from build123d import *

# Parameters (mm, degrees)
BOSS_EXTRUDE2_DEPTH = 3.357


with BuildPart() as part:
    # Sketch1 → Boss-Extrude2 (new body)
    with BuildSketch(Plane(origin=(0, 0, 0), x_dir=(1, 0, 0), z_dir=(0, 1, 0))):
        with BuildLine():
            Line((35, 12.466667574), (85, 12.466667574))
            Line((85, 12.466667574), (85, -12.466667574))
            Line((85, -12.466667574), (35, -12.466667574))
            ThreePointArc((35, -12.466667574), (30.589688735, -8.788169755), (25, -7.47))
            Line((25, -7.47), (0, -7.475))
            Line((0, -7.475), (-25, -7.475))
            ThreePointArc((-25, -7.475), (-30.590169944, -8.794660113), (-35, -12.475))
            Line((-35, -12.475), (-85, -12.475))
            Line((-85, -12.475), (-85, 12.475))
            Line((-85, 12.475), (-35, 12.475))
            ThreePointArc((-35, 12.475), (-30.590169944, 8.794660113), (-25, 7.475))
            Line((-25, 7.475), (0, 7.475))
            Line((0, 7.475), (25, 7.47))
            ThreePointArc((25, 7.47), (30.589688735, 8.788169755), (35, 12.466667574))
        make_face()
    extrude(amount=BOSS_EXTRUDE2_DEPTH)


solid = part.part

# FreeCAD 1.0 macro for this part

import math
import FreeCAD as App
import Part
import Sketcher
from FreeCAD import Vector
Q = App.Units.Quantity

doc = App.newDocument("Part")
body = doc.addObject("PartDesign::Body", "Body")

# Sketch on XZ plane
sketch1 = body.newObject("Sketcher::SketchObject", "Sketch")
sketch1.AttachmentSupport = (doc.getObject("XZ_Plane"), [""])
sketch1.MapMode = "FlatFace"
sketch1.addGeometry([
    Part.LineSegment(Vector(85, -12, 0), Vector(35, -12, 0)),  # 0
    Part.ArcOfCircle(Part.Circle(Vector(25, -20, 0), Vector(0, 0, 1), 12), math.radians(37), math.radians(90)),  # 1
    Part.LineSegment(Vector(25, -7, 0), Vector(0, -7, 0)),  # 2
    Part.LineSegment(Vector(0, -7, 0), Vector(-25, -7, 0)),  # 3
    Part.ArcOfCircle(Part.Circle(Vector(-25, -20, 0), Vector(0, 0, 1), 13), math.radians(90), math.radians(143)),  # 4
    Part.LineSegment(Vector(-35, -12, 0), Vector(-85, -12, 0)),  # 5
    Part.LineSegment(Vector(-85, -12, 0), Vector(-85, 12, 0)),  # 6
    Part.LineSegment(Vector(-85, 12, 0), Vector(-35, 12, 0)),  # 7
    Part.ArcOfCircle(Part.Circle(Vector(-25, 20, 0), Vector(0, 0, 1), 13), math.radians(-143), math.radians(-90)),  # 8
    Part.LineSegment(Vector(-25, 7, 0), Vector(0, 7, 0)),  # 9
    Part.LineSegment(Vector(0, 7, 0), Vector(25, 7, 0)),  # 10
    Part.ArcOfCircle(Part.Circle(Vector(25, 20, 0), Vector(0, 0, 1), 12), math.radians(-90), math.radians(-37)),  # 11
    Part.LineSegment(Vector(35, 12, 0), Vector(85, 12, 0)),  # 12
    Part.LineSegment(Vector(85, 12, 0), Vector(85, -12, 0)),  # 13
], False)
sketch1.addConstraint([
    Sketcher.Constraint("Coincident", 0, 2, 1, 1),
    Sketcher.Constraint("Tangent", 1, 2, 2, 1),
    Sketcher.Constraint("Coincident", 2, 2, 3, 1),
    Sketcher.Constraint("Tangent", 3, 2, 4, 1),
    Sketcher.Constraint("Coincident", 4, 2, 5, 1),
    Sketcher.Constraint("Coincident", 5, 2, 6, 1),
    Sketcher.Constraint("Coincident", 6, 2, 7, 1),
    Sketcher.Constraint("Coincident", 7, 2, 8, 1),
    Sketcher.Constraint("Tangent", 8, 2, 9, 1),
    Sketcher.Constraint("Coincident", 9, 2, 10, 1),
    Sketcher.Constraint("Tangent", 10, 2, 11, 1),
    Sketcher.Constraint("Coincident", 11, 2, 12, 1),
    Sketcher.Constraint("Coincident", 12, 2, 13, 1),
    Sketcher.Constraint("Coincident", 13, 2, 0, 1),
    Sketcher.Constraint("Horizontal", 0),
    Sketcher.Constraint("Horizontal", 3),
    Sketcher.Constraint("Horizontal", 5),
    Sketcher.Constraint("Vertical", 6),
    Sketcher.Constraint("Horizontal", 7),
    Sketcher.Constraint("Horizontal", 9),
    Sketcher.Constraint("Horizontal", 12),
    Sketcher.Constraint("Vertical", 13),
    Sketcher.Constraint("Equal", 1, 4),
    Sketcher.Constraint("Equal", 4, 8),
    Sketcher.Constraint("Equal", 8, 11),
    Sketcher.Constraint("Symmetric", 2, 2, 9, 2, -1, 1),
    Sketcher.Constraint("Symmetric", 1, 3, 11, 3, -1),
    Sketcher.Constraint("Symmetric", 4, 2, 7, 2, -1),
    Sketcher.Constraint("PointOnObject", 2, 2, -2),
    Sketcher.Constraint("Vertical", 0, 2, 11, 2),
    Sketcher.Constraint("Equal", 0, 5),
    Sketcher.Constraint("Radius", 1, Q("12.5 mm")),
    Sketcher.Constraint("DistanceX", 0, 2, 0, 1, Q("50 mm")),
    Sketcher.Constraint("DistanceX", 3, 2, 3, 1, Q("25 mm")),
    Sketcher.Constraint("Distance", 2, Q("25 mm")),
    Sketcher.Constraint("DistanceX", -1, 1, 0, 2, Q("35 mm")),
    Sketcher.Constraint("DistanceX", 4, 2, -1, 1, Q("35 mm")),
    Sketcher.Constraint("DistanceY", 6, 1, 6, 2, Q("24.95 mm")),
    Sketcher.Constraint("DistanceY", 1, 3, -1, 1, Q("19.97 mm")),
])
pad1 = body.newObject("PartDesign::Pad", "Pad")
pad1.Profile = sketch1
pad1.Length = 3.357
pad1.Reversed = True

doc.recompute()
